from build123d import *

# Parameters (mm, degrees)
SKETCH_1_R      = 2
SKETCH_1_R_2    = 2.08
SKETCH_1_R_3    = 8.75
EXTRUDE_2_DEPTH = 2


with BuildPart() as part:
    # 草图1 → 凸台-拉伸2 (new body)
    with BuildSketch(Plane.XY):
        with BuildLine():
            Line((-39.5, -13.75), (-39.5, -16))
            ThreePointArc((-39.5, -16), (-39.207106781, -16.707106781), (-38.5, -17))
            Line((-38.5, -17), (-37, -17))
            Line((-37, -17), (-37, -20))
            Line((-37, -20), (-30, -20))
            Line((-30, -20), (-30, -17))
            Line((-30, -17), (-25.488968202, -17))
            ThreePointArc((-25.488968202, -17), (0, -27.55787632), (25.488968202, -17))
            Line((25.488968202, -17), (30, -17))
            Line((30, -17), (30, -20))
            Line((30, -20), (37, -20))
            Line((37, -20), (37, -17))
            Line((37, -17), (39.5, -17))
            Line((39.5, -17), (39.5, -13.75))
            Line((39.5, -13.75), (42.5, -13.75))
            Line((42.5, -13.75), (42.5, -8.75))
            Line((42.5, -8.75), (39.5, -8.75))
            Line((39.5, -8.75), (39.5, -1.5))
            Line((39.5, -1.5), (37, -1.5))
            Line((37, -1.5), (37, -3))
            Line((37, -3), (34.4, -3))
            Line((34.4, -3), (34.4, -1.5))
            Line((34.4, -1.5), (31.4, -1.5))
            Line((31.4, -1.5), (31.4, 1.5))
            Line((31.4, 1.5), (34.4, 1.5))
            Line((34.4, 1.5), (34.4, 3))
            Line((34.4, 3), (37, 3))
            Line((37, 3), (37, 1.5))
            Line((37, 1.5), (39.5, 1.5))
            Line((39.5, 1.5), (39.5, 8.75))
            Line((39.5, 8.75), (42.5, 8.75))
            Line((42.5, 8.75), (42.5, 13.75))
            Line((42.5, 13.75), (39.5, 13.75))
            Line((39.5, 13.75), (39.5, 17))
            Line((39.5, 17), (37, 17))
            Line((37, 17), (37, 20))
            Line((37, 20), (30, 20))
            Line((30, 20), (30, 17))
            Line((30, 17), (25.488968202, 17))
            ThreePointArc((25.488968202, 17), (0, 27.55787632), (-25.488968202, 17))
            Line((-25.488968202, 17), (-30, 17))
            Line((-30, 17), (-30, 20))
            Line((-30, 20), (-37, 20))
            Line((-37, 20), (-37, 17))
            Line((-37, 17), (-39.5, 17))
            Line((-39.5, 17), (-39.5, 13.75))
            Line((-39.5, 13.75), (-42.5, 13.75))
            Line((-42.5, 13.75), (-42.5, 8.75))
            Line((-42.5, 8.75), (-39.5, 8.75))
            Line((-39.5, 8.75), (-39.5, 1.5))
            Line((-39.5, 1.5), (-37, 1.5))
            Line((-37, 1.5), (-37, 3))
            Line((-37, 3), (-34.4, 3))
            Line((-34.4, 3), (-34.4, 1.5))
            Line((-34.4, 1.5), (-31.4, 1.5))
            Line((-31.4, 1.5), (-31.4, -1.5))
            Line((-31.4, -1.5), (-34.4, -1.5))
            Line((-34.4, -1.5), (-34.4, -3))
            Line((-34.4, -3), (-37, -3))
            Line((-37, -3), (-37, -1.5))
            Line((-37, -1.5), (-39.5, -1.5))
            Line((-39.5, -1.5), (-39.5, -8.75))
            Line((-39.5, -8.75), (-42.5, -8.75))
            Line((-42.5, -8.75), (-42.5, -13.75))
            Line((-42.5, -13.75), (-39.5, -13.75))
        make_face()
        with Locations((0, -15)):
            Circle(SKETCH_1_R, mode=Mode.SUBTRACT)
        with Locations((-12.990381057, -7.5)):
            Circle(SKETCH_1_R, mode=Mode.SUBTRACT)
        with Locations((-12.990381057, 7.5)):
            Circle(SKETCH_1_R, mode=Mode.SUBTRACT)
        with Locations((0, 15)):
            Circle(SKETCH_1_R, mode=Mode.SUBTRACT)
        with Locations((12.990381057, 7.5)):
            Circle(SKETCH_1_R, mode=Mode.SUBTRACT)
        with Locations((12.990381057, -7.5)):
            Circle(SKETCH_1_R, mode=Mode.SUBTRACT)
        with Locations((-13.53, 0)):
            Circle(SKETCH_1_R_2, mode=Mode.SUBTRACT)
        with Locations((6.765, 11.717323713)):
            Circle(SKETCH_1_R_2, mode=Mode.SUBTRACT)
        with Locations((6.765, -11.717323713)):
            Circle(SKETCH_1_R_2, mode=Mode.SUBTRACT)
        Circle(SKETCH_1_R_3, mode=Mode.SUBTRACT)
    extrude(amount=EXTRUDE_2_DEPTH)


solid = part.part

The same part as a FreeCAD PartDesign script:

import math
import FreeCAD as App
import Part
import Sketcher

V = App.Vector
Q = App.Units.Quantity

doc = App.newDocument("Part")
body = doc.addObject("PartDesign::Body", "Body")

# Sketch on XY plane
sketch1 = body.newObject("Sketcher::SketchObject", "Sketch")
sketch1.AttachmentSupport = (doc.getObject("XY_Plane"), [""])
sketch1.MapMode = "FlatFace"
sketch1.addGeometry([
    Part.LineSegment(V(-39.5, -13.8, 0), V(-39.5, -16, 0)),  # 0
    Part.ArcOfCircle(Part.Circle(V(-38.5, -16, 0), V(0, 0, 1), 1), math.radians(-180), math.radians(-90)),  # 1
    Part.LineSegment(V(-38.5, -17, 0), V(-37, -17, 0)),  # 2
    Part.LineSegment(V(-37, -17, 0), V(-37, -20, 0)),  # 3
    Part.LineSegment(V(-37, -20, 0), V(-30, -20, 0)),  # 4
    Part.LineSegment(V(-30, -20, 0), V(-30, -17, 0)),  # 5
    Part.LineSegment(V(-30, -17, 0), V(-25.5, -17, 0)),  # 6
    Part.ArcOfCircle(Part.Circle(V(0, 8.5, 0), V(0, 0, 1), 36), math.radians(-135), math.radians(-45)),  # 7
    Part.LineSegment(V(25.5, -17, 0), V(30, -17, 0)),  # 8
    Part.LineSegment(V(30, -17, 0), V(30, -20, 0)),  # 9
    Part.LineSegment(V(30, -20, 0), V(37, -20, 0)),  # 10
    Part.LineSegment(V(37, -20, 0), V(37, -17, 0)),  # 11
    Part.LineSegment(V(37, -17, 0), V(39.5, -17, 0)),  # 12
    Part.LineSegment(V(39.5, -17, 0), V(39.5, -13.8, 0)),  # 13
    Part.LineSegment(V(39.5, -13.8, 0), V(42.5, -13.8, 0)),  # 14
    Part.LineSegment(V(42.5, -13.8, 0), V(42.5, -8.8, 0)),  # 15
    Part.LineSegment(V(42.5, -8.8, 0), V(39.5, -8.8, 0)),  # 16
    Part.LineSegment(V(39.5, -8.8, 0), V(39.5, -1.5, 0)),  # 17
    Part.LineSegment(V(39.5, -1.5, 0), V(37, -1.5, 0)),  # 18
    Part.LineSegment(V(37, -1.5, 0), V(37, -3, 0)),  # 19
    Part.LineSegment(V(37, -3, 0), V(34.4, -3, 0)),  # 20
    Part.LineSegment(V(34.4, -3, 0), V(34.4, -1.5, 0)),  # 21
    Part.LineSegment(V(34.4, -1.5, 0), V(31.4, -1.5, 0)),  # 22
    Part.LineSegment(V(31.4, -1.5, 0), V(31.4, 1.5, 0)),  # 23
    Part.LineSegment(V(31.4, 1.5, 0), V(34.4, 1.5, 0)),  # 24
    Part.LineSegment(V(34.4, 1.5, 0), V(34.4, 3, 0)),  # 25
    Part.LineSegment(V(34.4, 3, 0), V(37, 3, 0)),  # 26
    Part.LineSegment(V(37, 3, 0), V(37, 1.5, 0)),  # 27
    Part.LineSegment(V(37, 1.5, 0), V(39.5, 1.5, 0)),  # 28
    Part.LineSegment(V(39.5, 1.5, 0), V(39.5, 8.8, 0)),  # 29
    Part.LineSegment(V(39.5, 8.8, 0), V(42.5, 8.8, 0)),  # 30
    Part.LineSegment(V(42.5, 8.8, 0), V(42.5, 13.8, 0)),  # 31
    Part.LineSegment(V(42.5, 13.8, 0), V(39.5, 13.8, 0)),  # 32
    Part.LineSegment(V(39.5, 13.8, 0), V(39.5, 17, 0)),  # 33
    Part.LineSegment(V(39.5, 17, 0), V(37, 17, 0)),  # 34
    Part.LineSegment(V(37, 17, 0), V(37, 20, 0)),  # 35
    Part.LineSegment(V(37, 20, 0), V(30, 20, 0)),  # 36
    Part.LineSegment(V(30, 20, 0), V(30, 17, 0)),  # 37
    Part.LineSegment(V(30, 17, 0), V(25.5, 17, 0)),  # 38
    Part.ArcOfCircle(Part.Circle(V(0, -8.5, 0), V(0, 0, 1), 36), math.radians(45), math.radians(135)),  # 39
    Part.LineSegment(V(-25.5, 17, 0), V(-30, 17, 0)),  # 40
    Part.LineSegment(V(-30, 17, 0), V(-30, 20, 0)),  # 41
    Part.LineSegment(V(-30, 20, 0), V(-37, 20, 0)),  # 42
    Part.LineSegment(V(-37, 20, 0), V(-37, 17, 0)),  # 43
    Part.LineSegment(V(-37, 17, 0), V(-39.5, 17, 0)),  # 44
    Part.LineSegment(V(-39.5, 17, 0), V(-39.5, 13.8, 0)),  # 45
    Part.LineSegment(V(-39.5, 13.8, 0), V(-42.5, 13.8, 0)),  # 46
    Part.LineSegment(V(-42.5, 13.8, 0), V(-42.5, 8.8, 0)),  # 47
    Part.LineSegment(V(-42.5, 8.8, 0), V(-39.5, 8.8, 0)),  # 48
    Part.LineSegment(V(-39.5, 8.8, 0), V(-39.5, 1.5, 0)),  # 49
    Part.LineSegment(V(-39.5, 1.5, 0), V(-37, 1.5, 0)),  # 50
    Part.LineSegment(V(-37, 1.5, 0), V(-37, 3, 0)),  # 51
    Part.LineSegment(V(-37, 3, 0), V(-34.4, 3, 0)),  # 52
    Part.LineSegment(V(-34.4, 3, 0), V(-34.4, 1.5, 0)),  # 53
    Part.LineSegment(V(-34.4, 1.5, 0), V(-31.4, 1.5, 0)),  # 54
    Part.LineSegment(V(-31.4, 1.5, 0), V(-31.4, -1.5, 0)),  # 55
    Part.LineSegment(V(-31.4, -1.5, 0), V(-34.4, -1.5, 0)),  # 56
    Part.LineSegment(V(-34.4, -1.5, 0), V(-34.4, -3, 0)),  # 57
    Part.LineSegment(V(-34.4, -3, 0), V(-37, -3, 0)),  # 58
    Part.LineSegment(V(-37, -3, 0), V(-37, -1.5, 0)),  # 59
    Part.LineSegment(V(-37, -1.5, 0), V(-39.5, -1.5, 0)),  # 60
    Part.LineSegment(V(-39.5, -1.5, 0), V(-39.5, -8.8, 0)),  # 61
    Part.LineSegment(V(-39.5, -8.8, 0), V(-42.5, -8.8, 0)),  # 62
    Part.LineSegment(V(-42.5, -8.8, 0), V(-42.5, -13.8, 0)),  # 63
    Part.LineSegment(V(-42.5, -13.8, 0), V(-39.5, -13.8, 0)),  # 64
    Part.Circle(V(-13, -7.5, 0), V(0, 0, 1), 2),  # 65
    Part.Circle(V(0, -15, 0), V(0, 0, 1), 2),  # 66
    Part.Circle(V(6.8, -11.7, 0), V(0, 0, 1), 2.1),  # 67
    Part.Circle(V(13, -7.5, 0), V(0, 0, 1), 2),  # 68
    Part.Circle(V(-13.5, 0, 0), V(0, 0, 1), 2.1),  # 69
    Part.Circle(V(-13, 7.5, 0), V(0, 0, 1), 2),  # 70
    Part.Circle(V(0, 0, 0), V(0, 0, 1), 8.8),  # 71
    Part.Circle(V(13, 7.5, 0), V(0, 0, 1), 2),  # 72
    Part.Circle(V(6.8, 11.7, 0), V(0, 0, 1), 2.1),  # 73
    Part.Circle(V(0, 15, 0), V(0, 0, 1), 2),  # 74
], False)
sketch1.addConstraint([
    Sketcher.Constraint("Tangent", 0, 2, 1, 1),
    Sketcher.Constraint("Tangent", 1, 2, 2, 1),
    Sketcher.Constraint("Coincident", 2, 2, 3, 1),
    Sketcher.Constraint("Coincident", 3, 2, 4, 1),
    Sketcher.Constraint("Coincident", 4, 2, 5, 1),
    Sketcher.Constraint("Coincident", 5, 2, 6, 1),
    Sketcher.Constraint("Coincident", 6, 2, 7, 1),
    Sketcher.Constraint("Coincident", 7, 2, 8, 1),
    Sketcher.Constraint("Coincident", 8, 2, 9, 1),
    Sketcher.Constraint("Coincident", 9, 2, 10, 1),
    Sketcher.Constraint("Coincident", 10, 2, 11, 1),
    Sketcher.Constraint("Coincident", 11, 2, 12, 1),
    Sketcher.Constraint("Coincident", 12, 2, 13, 1),
    Sketcher.Constraint("Coincident", 13, 2, 14, 1),
    Sketcher.Constraint("Coincident", 14, 2, 15, 1),
    Sketcher.Constraint("Coincident", 15, 2, 16, 1),
    Sketcher.Constraint("Coincident", 16, 2, 17, 1),
    Sketcher.Constraint("Coincident", 17, 2, 18, 1),
    Sketcher.Constraint("Coincident", 18, 2, 19, 1),
    Sketcher.Constraint("Coincident", 19, 2, 20, 1),
    Sketcher.Constraint("Coincident", 20, 2, 21, 1),
    Sketcher.Constraint("Coincident", 21, 2, 22, 1),
    Sketcher.Constraint("Coincident", 22, 2, 23, 1),
    Sketcher.Constraint("Coincident", 23, 2, 24, 1),
    Sketcher.Constraint("Coincident", 24, 2, 25, 1),
    Sketcher.Constraint("Coincident", 25, 2, 26, 1),
    Sketcher.Constraint("Coincident", 26, 2, 27, 1),
    Sketcher.Constraint("Coincident", 27, 2, 28, 1),
    Sketcher.Constraint("Coincident", 28, 2, 29, 1),
    Sketcher.Constraint("Coincident", 29, 2, 30, 1),
    Sketcher.Constraint("Coincident", 30, 2, 31, 1),
    Sketcher.Constraint("Coincident", 31, 2, 32, 1),
    Sketcher.Constraint("Coincident", 32, 2, 33, 1),
    Sketcher.Constraint("Coincident", 33, 2, 34, 1),
    Sketcher.Constraint("Coincident", 34, 2, 35, 1),
    Sketcher.Constraint("Coincident", 35, 2, 36, 1),
    Sketcher.Constraint("Coincident", 36, 2, 37, 1),
    Sketcher.Constraint("Coincident", 37, 2, 38, 1),
    Sketcher.Constraint("Coincident", 38, 2, 39, 1),
    Sketcher.Constraint("Coincident", 39, 2, 40, 1),
    Sketcher.Constraint("Coincident", 40, 2, 41, 1),
    Sketcher.Constraint("Coincident", 41, 2, 42, 1),
    Sketcher.Constraint("Coincident", 42, 2, 43, 1),
    Sketcher.Constraint("Coincident", 43, 2, 44, 1),
    Sketcher.Constraint("Coincident", 44, 2, 45, 1),
    Sketcher.Constraint("Coincident", 45, 2, 46, 1),
    Sketcher.Constraint("Coincident", 46, 2, 47, 1),
    Sketcher.Constraint("Coincident", 47, 2, 48, 1),
    Sketcher.Constraint("Coincident", 48, 2, 49, 1),
    Sketcher.Constraint("Coincident", 49, 2, 50, 1),
    Sketcher.Constraint("Coincident", 50, 2, 51, 1),
    Sketcher.Constraint("Coincident", 51, 2, 52, 1),
    Sketcher.Constraint("Coincident", 52, 2, 53, 1),
    Sketcher.Constraint("Coincident", 53, 2, 54, 1),
    Sketcher.Constraint("Coincident", 54, 2, 55, 1),
    Sketcher.Constraint("Coincident", 55, 2, 56, 1),
    Sketcher.Constraint("Coincident", 56, 2, 57, 1),
    Sketcher.Constraint("Coincident", 57, 2, 58, 1),
    Sketcher.Constraint("Coincident", 58, 2, 59, 1),
    Sketcher.Constraint("Coincident", 59, 2, 60, 1),
    Sketcher.Constraint("Coincident", 60, 2, 61, 1),
    Sketcher.Constraint("Coincident", 61, 2, 62, 1),
    Sketcher.Constraint("Coincident", 62, 2, 63, 1),
    Sketcher.Constraint("Coincident", 63, 2, 64, 1),
    Sketcher.Constraint("Coincident", 64, 2, 0, 1),
    Sketcher.Constraint("Vertical", 0),
    Sketcher.Constraint("Horizontal", 2),
    Sketcher.Constraint("Vertical", 3),
    Sketcher.Constraint("Horizontal", 4),
    Sketcher.Constraint("Vertical", 5),
    Sketcher.Constraint("Horizontal", 6),
    Sketcher.Constraint("Horizontal", 8),
    Sketcher.Constraint("Vertical", 9),
    Sketcher.Constraint("Horizontal", 10),
    Sketcher.Constraint("Vertical", 11),
    Sketcher.Constraint("Horizontal", 12),
    Sketcher.Constraint("Vertical", 13),
    Sketcher.Constraint("Horizontal", 14),
    Sketcher.Constraint("Vertical", 15),
    Sketcher.Constraint("Horizontal", 16),
    Sketcher.Constraint("Vertical", 17),
    Sketcher.Constraint("Horizontal", 18),
    Sketcher.Constraint("Vertical", 19),
    Sketcher.Constraint("Horizontal", 20),
    Sketcher.Constraint("Vertical", 21),
    Sketcher.Constraint("Horizontal", 22),
    Sketcher.Constraint("Vertical", 23),
    Sketcher.Constraint("Horizontal", 24),
    Sketcher.Constraint("Vertical", 25),
    Sketcher.Constraint("Horizontal", 26),
    Sketcher.Constraint("Vertical", 27),
    Sketcher.Constraint("Horizontal", 28),
    Sketcher.Constraint("Vertical", 29),
    Sketcher.Constraint("Horizontal", 30),
    Sketcher.Constraint("Vertical", 31),
    Sketcher.Constraint("Horizontal", 32),
    Sketcher.Constraint("Vertical", 33),
    Sketcher.Constraint("Horizontal", 34),
    Sketcher.Constraint("Vertical", 35),
    Sketcher.Constraint("Horizontal", 36),
    Sketcher.Constraint("Vertical", 37),
    Sketcher.Constraint("Horizontal", 38),
    Sketcher.Constraint("Horizontal", 40),
    Sketcher.Constraint("Vertical", 41),
    Sketcher.Constraint("Horizontal", 42),
    Sketcher.Constraint("Vertical", 43),
    Sketcher.Constraint("Horizontal", 44),
    Sketcher.Constraint("Vertical", 45),
    Sketcher.Constraint("Horizontal", 46),
    Sketcher.Constraint("Vertical", 47),
    Sketcher.Constraint("Horizontal", 48),
    Sketcher.Constraint("Vertical", 49),
    Sketcher.Constraint("Horizontal", 50),
    Sketcher.Constraint("Vertical", 51),
    Sketcher.Constraint("Horizontal", 52),
    Sketcher.Constraint("Vertical", 53),
    Sketcher.Constraint("Horizontal", 54),
    Sketcher.Constraint("Vertical", 55),
    Sketcher.Constraint("Horizontal", 56),
    Sketcher.Constraint("Vertical", 57),
    Sketcher.Constraint("Horizontal", 58),
    Sketcher.Constraint("Vertical", 59),
    Sketcher.Constraint("Horizontal", 60),
    Sketcher.Constraint("Vertical", 61),
    Sketcher.Constraint("Horizontal", 62),
    Sketcher.Constraint("Vertical", 63),
    Sketcher.Constraint("Horizontal", 64),
    Sketcher.Constraint("Coincident", 71, 3, -1, 1),
    Sketcher.Constraint("Equal", 7, 39),
    Sketcher.Constraint("Equal", 65, 66),
    Sketcher.Constraint("Equal", 66, 68),
    Sketcher.Constraint("Equal", 67, 69),
    Sketcher.Constraint("Equal", 68, 70),
    Sketcher.Constraint("Equal", 70, 72),
    Sketcher.Constraint("Equal", 69, 73),
    Sketcher.Constraint("Equal", 72, 74),
    Sketcher.Constraint("Symmetric", 7, 3, 39, 3, -1, 1),
    Sketcher.Constraint("Symmetric", 68, 3, 70, 3, -1, 1),
    Sketcher.Constraint("Symmetric", 65, 3, 72, 3, -1, 1),
    Sketcher.Constraint("Symmetric", 66, 3, 74, 3, -1, 1),
    Sketcher.Constraint("Symmetric", 2, 2, 34, 2, -1, 1),
    Sketcher.Constraint("Symmetric", 4, 2, 36, 2, -1, 1),
    Sketcher.Constraint("Symmetric", 8, 2, 40, 2, -1, 1),
    Sketcher.Constraint("Symmetric", 10, 2, 42, 2, -1, 1),
    Sketcher.Constraint("Symmetric", 12, 2, 44, 2, -1, 1),
    Sketcher.Constraint("Symmetric", 14, 2, 46, 2, -1, 1),
    Sketcher.Constraint("Symmetric", 16, 2, 48, 2, -1, 1),
    Sketcher.Constraint("Symmetric", 18, 2, 50, 2, -1, 1),
    Sketcher.Constraint("Symmetric", 20, 2, 52, 2, -1, 1),
    Sketcher.Constraint("Symmetric", 22, 2, 54, 2, -1, 1),
    Sketcher.Constraint("Symmetric", 24, 2, 56, 2, -1, 1),
    Sketcher.Constraint("Symmetric", 26, 2, 58, 2, -1, 1),
    Sketcher.Constraint("Symmetric", 28, 2, 60, 2, -1, 1),
    Sketcher.Constraint("Symmetric", 30, 2, 62, 2, -1, 1),
    Sketcher.Constraint("Symmetric", 32, 2, 64, 2, -1, 1),
    Sketcher.Constraint("Symmetric", 65, 3, 68, 3, -2),
    Sketcher.Constraint("Symmetric", 6, 2, 7, 2, -2),
    Sketcher.Constraint("Symmetric", 4, 2, 9, 2, -2),
    Sketcher.Constraint("Symmetric", 2, 2, 11, 2, -2),
    Sketcher.Constraint("Symmetric", 32, 2, 45, 2, -2),
    Sketcher.Constraint("Symmetric", 30, 2, 47, 2, -2),
    Sketcher.Constraint("Symmetric", 28, 2, 49, 2, -2),
    Sketcher.Constraint("Symmetric", 26, 2, 51, 2, -2),
    Sketcher.Constraint("Symmetric", 24, 2, 53, 2, -2),
    Sketcher.Constraint("Symmetric", 67, 3, 73, 3, -1),
    Sketcher.Constraint("PointOnObject", 66, 3, -2),
    Sketcher.Constraint("PointOnObject", 69, 3, -1),
    Sketcher.Constraint("Horizontal", 2, 2, 5, 2),
    Sketcher.Constraint("Horizontal", 18, 2, 21, 2),
    Sketcher.Constraint("Horizontal", 34, 2, 37, 2),
    Sketcher.Constraint("Vertical", 13, 2, 16, 2),
    Sketcher.Constraint("Vertical", 11, 2, 18, 2),
    Sketcher.Constraint("Equal", 16, 22),
    Sketcher.Constraint("Equal", 64, 3),
    Sketcher.Constraint("Equal", 2, 19),
    Sketcher.Constraint("Equal", 11, 23),
    Sketcher.Constraint("Diameter", 65, Q("4 mm")),
    Sketcher.Constraint("Radius", 1, Q("1 mm")),
    Sketcher.Constraint("Diameter", 71, Q("17.5 mm")),
    Sketcher.Constraint("Diameter", 67, Q("4.16 mm")),
    Sketcher.Constraint("DistanceX", 4, 1, 4, 2, Q("7 mm")),
    Sketcher.Constraint("DistanceX", 14, 1, 14, 2, Q("3 mm")),
    Sketcher.Constraint("DistanceY", 15, 1, 15, 2, Q("5 mm")),
    Sketcher.Constraint("DistanceX", 2, 1, 2, 2, Q("1.5 mm")),
    Sketcher.Constraint("DistanceX", 20, 2, 20, 1, Q("2.6 mm")),
    Sketcher.Constraint("DistanceY", 1, 3, -1, 1, Q("16 mm")),
    Sketcher.Constraint("DistanceY", 66, 3, -1, 1, Q("15 mm")),
    Sketcher.Constraint("DistanceX", 2, 2, -1, 1, Q("37 mm")),
    Sketcher.Constraint("DistanceY", 0, 2, 0, 1, Q("2.25 mm")),
    Sketcher.Constraint("DistanceY", 65, 3, -1, 1, Q("7.5 mm")),
    Sketcher.Constraint("DistanceX", 69, 3, -1, 1, Q("13.53 mm")),
    Sketcher.Constraint("DistanceX", -1, 1, 67, 3, Q("6.765 mm")),
    Sketcher.Constraint("Radius", 7, Q("36.046845 mm")),
    Sketcher.Constraint("DistanceX", 6, 1, 6, 2, Q("4.511032 mm")),
    Sketcher.Constraint("DistanceX", 65, 3, -1, 1, Q("12.990381 mm")),
    Sketcher.Constraint("DistanceY", 67, 3, -1, 1, Q("11.717324 mm")),
])
pad1 = body.newObject("PartDesign::Pad", "Pad")
pad1.Profile = sketch1
pad1.Length = 2

doc.recompute()
